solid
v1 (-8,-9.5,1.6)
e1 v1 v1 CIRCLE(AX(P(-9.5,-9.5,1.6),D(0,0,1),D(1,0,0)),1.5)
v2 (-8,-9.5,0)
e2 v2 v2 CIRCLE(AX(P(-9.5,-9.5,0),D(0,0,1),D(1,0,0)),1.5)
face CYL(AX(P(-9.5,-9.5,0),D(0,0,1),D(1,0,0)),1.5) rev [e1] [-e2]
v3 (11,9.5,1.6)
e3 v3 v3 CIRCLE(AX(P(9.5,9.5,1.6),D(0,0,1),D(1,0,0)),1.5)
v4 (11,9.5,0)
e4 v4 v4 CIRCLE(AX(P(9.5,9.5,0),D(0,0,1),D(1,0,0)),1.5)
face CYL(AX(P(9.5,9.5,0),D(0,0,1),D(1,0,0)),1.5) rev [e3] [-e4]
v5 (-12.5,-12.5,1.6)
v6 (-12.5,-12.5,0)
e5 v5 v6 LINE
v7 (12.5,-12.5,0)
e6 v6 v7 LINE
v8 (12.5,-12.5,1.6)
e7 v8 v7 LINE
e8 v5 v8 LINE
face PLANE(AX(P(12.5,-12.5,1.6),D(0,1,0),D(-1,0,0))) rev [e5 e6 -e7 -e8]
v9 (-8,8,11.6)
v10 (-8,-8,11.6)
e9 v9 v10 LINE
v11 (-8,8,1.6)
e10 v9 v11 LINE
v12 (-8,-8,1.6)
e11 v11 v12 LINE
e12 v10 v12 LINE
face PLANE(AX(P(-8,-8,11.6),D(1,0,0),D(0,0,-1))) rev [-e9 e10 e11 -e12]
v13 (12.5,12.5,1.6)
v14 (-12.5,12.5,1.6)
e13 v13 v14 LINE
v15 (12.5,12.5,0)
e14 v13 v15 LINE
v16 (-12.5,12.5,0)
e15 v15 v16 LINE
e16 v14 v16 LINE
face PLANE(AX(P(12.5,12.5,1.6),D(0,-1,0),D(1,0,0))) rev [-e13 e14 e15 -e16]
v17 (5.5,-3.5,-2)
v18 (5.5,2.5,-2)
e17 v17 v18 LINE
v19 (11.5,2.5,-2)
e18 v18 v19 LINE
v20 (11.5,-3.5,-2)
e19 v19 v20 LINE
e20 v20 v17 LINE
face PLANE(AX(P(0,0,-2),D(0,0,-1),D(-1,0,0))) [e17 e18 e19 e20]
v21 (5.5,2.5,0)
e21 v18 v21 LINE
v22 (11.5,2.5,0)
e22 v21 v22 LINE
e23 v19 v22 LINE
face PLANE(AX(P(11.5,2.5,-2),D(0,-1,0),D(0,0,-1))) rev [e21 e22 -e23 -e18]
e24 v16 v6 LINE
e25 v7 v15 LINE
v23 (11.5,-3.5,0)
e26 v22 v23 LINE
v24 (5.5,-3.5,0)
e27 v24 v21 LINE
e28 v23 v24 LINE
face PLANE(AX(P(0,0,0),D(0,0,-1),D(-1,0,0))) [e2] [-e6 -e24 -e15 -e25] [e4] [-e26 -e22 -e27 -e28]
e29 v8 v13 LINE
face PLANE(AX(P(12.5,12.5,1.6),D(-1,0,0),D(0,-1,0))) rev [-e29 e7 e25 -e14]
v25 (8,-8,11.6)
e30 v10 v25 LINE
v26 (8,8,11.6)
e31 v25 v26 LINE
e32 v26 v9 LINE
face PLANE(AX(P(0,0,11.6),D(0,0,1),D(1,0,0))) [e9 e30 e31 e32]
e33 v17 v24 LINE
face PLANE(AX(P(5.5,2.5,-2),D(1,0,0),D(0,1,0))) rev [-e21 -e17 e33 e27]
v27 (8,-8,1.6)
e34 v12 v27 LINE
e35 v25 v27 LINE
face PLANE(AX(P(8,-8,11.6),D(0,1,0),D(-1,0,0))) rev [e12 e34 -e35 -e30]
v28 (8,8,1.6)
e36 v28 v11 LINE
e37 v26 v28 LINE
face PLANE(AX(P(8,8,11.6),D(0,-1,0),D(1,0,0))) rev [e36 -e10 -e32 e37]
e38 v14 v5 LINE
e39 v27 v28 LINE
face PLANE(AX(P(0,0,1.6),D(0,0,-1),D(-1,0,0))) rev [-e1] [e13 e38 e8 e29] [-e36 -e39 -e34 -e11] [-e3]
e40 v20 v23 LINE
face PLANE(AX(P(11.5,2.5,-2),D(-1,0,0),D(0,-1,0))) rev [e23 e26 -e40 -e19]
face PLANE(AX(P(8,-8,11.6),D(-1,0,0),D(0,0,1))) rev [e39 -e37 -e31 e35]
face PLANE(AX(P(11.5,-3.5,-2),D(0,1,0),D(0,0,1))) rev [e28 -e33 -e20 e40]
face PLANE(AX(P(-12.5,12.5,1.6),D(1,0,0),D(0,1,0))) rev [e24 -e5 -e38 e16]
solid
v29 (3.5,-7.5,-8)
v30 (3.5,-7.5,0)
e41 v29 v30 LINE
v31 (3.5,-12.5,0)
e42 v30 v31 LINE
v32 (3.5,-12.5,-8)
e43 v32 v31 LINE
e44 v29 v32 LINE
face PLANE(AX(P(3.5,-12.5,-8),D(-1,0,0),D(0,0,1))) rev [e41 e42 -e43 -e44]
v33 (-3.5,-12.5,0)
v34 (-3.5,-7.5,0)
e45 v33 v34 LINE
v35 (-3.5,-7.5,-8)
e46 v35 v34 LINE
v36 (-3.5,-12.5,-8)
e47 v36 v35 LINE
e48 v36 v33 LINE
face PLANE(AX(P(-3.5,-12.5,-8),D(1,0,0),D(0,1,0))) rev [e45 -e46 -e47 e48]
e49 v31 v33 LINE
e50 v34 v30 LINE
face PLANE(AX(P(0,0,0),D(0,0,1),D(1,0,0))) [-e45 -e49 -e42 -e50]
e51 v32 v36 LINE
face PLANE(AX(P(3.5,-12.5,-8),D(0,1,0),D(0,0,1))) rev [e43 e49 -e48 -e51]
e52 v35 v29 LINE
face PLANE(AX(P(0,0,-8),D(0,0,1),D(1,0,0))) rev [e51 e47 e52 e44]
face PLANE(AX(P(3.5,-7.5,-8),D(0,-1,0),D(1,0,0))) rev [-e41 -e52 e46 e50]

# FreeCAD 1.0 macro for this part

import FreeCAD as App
import Part
import Sketcher
from FreeCAD import Vector
Q = App.Units.Quantity

doc = App.newDocument("Part")
body = doc.addObject("PartDesign::Body", "Body")

sketch1 = doc.addObject("Sketcher::SketchObject", "Sketch")
body.addObject(sketch1)
sketch1.AttachmentSupport = (doc.XY_Plane, [""])
sketch1.MapMode = "FlatFace"
sketch1.addGeometry(Part.LineSegment(Vector(-12, 12, 0), Vector(-12, -12, 0)), False)
sketch1.addGeometry(Part.LineSegment(Vector(-12, -12, 0), Vector(12, -12, 0)), False)
sketch1.addGeometry(Part.LineSegment(Vector(12, -12, 0), Vector(12, 12, 0)), False)
sketch1.addGeometry(Part.LineSegment(Vector(12, 12, 0), Vector(-12, 12, 0)), False)
sketch1.addConstraint(Sketcher.Constraint("Coincident", 0, 2, 1, 1))
sketch1.addConstraint(Sketcher.Constraint("Coincident", 1, 2, 2, 1))
sketch1.addConstraint(Sketcher.Constraint("Coincident", 2, 2, 3, 1))
sketch1.addConstraint(Sketcher.Constraint("Coincident", 3, 2, 0, 1))
sketch1.addConstraint(Sketcher.Constraint("Vertical", 0))
sketch1.addConstraint(Sketcher.Constraint("Horizontal", 1))
sketch1.addConstraint(Sketcher.Constraint("Vertical", 2))
sketch1.addConstraint(Sketcher.Constraint("Horizontal", 3))
sketch1.addConstraint(Sketcher.Constraint("Symmetric", 0, 2, 2, 2, -1, 1))
sketch1.addConstraint(Sketcher.Constraint("Equal", 3, 0))
sketch1.addConstraint(Sketcher.Constraint("DistanceX", 1, 1, 1, 2, Q("25 mm")))
pad1 = doc.addObject("PartDesign::Pad", "Pad")
body.addObject(pad1)
pad1.Profile = sketch1
pad1.Length = 1.6

sketch2 = doc.addObject("Sketcher::SketchObject", "Sketch001")
body.addObject(sketch2)
sketch2.AttachmentSupport = (doc.XY_Plane, [""])
sketch2.MapMode = "FlatFace"
sketch2.AttachmentOffset = App.Placement(Vector(0, 0, 1.6), App.Rotation())
sketch2.addGeometry(Part.Circle(Vector(9.5, 9.5, 0), Vector(0, 0, 1), 1.5), False)
sketch2.addGeometry(Part.Circle(Vector(-9.5, -9.5, 0), Vector(0, 0, 1), 1.5), False)
sketch2.addConstraint(Sketcher.Constraint("Equal", 0, 1))
sketch2.addConstraint(Sketcher.Constraint("Symmetric", 0, 3, 1, 3, -1, 1))
sketch2.addConstraint(Sketcher.Constraint("Diameter", 0, Q("3 mm")))
sketch2.addConstraint(Sketcher.Constraint("DistanceX", 1, 3, 0, 3, Q("19 mm")))
sketch2.addConstraint(Sketcher.Constraint("DistanceY", 1, 3, 0, 3, Q("19 mm")))
pocket1 = doc.addObject("PartDesign::Pocket", "Pocket")
body.addObject(pocket1)
pocket1.Profile = sketch2
pocket1.Type = "ThroughAll"

sketch3 = doc.addObject("Sketcher::SketchObject", "Sketch002")
body.addObject(sketch3)
sketch3.AttachmentSupport = (doc.XY_Plane, [""])
sketch3.MapMode = "FlatFace"
sketch3.AttachmentOffset = App.Placement(Vector(0, 0, 1.6), App.Rotation())
sketch3.addGeometry(Part.LineSegment(Vector(-8, 8, 0), Vector(-8, -8, 0)), False)
sketch3.addGeometry(Part.LineSegment(Vector(-8, -8, 0), Vector(8, -8, 0)), False)
sketch3.addGeometry(Part.LineSegment(Vector(8, -8, 0), Vector(8, 8, 0)), False)
sketch3.addGeometry(Part.LineSegment(Vector(8, 8, 0), Vector(-8, 8, 0)), False)
sketch3.addConstraint(Sketcher.Constraint("Coincident", 0, 2, 1, 1))
sketch3.addConstraint(Sketcher.Constraint("Coincident", 1, 2, 2, 1))
sketch3.addConstraint(Sketcher.Constraint("Coincident", 2, 2, 3, 1))
sketch3.addConstraint(Sketcher.Constraint("Coincident", 3, 2, 0, 1))
sketch3.addConstraint(Sketcher.Constraint("Vertical", 0))
sketch3.addConstraint(Sketcher.Constraint("Horizontal", 1))
sketch3.addConstraint(Sketcher.Constraint("Vertical", 2))
sketch3.addConstraint(Sketcher.Constraint("Horizontal", 3))
sketch3.addConstraint(Sketcher.Constraint("Symmetric", 0, 2, 2, 2, -1, 1))
sketch3.addConstraint(Sketcher.Constraint("Equal", 3, 0))
sketch3.addConstraint(Sketcher.Constraint("DistanceX", 1, 1, 1, 2, Q("16 mm")))
pad2 = doc.addObject("PartDesign::Pad", "Pad001")
body.addObject(pad2)
pad2.Profile = sketch3
pad2.Length = 10

sketch4 = doc.addObject("Sketcher::SketchObject", "Sketch003")
body.addObject(sketch4)
sketch4.AttachmentSupport = (doc.XY_Plane, [""])
sketch4.MapMode = "FlatFace"
sketch4.addGeometry(Part.LineSegment(Vector(12, 2, 0), Vector(12, -4, 0)), False)
sketch4.addGeometry(Part.LineSegment(Vector(12, -4, 0), Vector(6, -4, 0)), False)
sketch4.addGeometry(Part.LineSegment(Vector(6, -4, 0), Vector(6, 2, 0)), False)
sketch4.addGeometry(Part.LineSegment(Vector(6, 2, 0), Vector(12, 2, 0)), False)
sketch4.addConstraint(Sketcher.Constraint("Coincident", 0, 2, 1, 1))
sketch4.addConstraint(Sketcher.Constraint("Coincident", 1, 2, 2, 1))
sketch4.addConstraint(Sketcher.Constraint("Coincident", 2, 2, 3, 1))
sketch4.addConstraint(Sketcher.Constraint("Coincident", 3, 2, 0, 1))
sketch4.addConstraint(Sketcher.Constraint("Vertical", 0))
sketch4.addConstraint(Sketcher.Constraint("Horizontal", 1))
sketch4.addConstraint(Sketcher.Constraint("Vertical", 2))
sketch4.addConstraint(Sketcher.Constraint("Horizontal", 3))
sketch4.addConstraint(Sketcher.Constraint("Equal", 3, 0))
sketch4.addConstraint(Sketcher.Constraint("DistanceX", 1, 2, 1, 1, Q("6 mm")))
sketch4.addConstraint(Sketcher.Constraint("DistanceX", -1, 1, 0, 2, Q("11.5 mm")))
sketch4.addConstraint(Sketcher.Constraint("DistanceY", 0, 2, -1, 1, Q("3.5 mm")))
pad3 = doc.addObject("PartDesign::Pad", "Pad002")
body.addObject(pad3)
pad3.Profile = sketch4
pad3.Length = 2
pad3.Reversed = True
body2 = doc.addObject("PartDesign::Body", "Body001")

sketch5 = doc.addObject("Sketcher::SketchObject", "Sketch004")
body2.addObject(sketch5)
sketch5.AttachmentSupport = (doc.getObject("XY_Plane001"), [""])
sketch5.MapMode = "FlatFace"
sketch5.addGeometry(Part.LineSegment(Vector(4, -8, 0), Vector(4, -12, 0)), False)
sketch5.addGeometry(Part.LineSegment(Vector(4, -12, 0), Vector(-4, -12, 0)), False)
sketch5.addGeometry(Part.LineSegment(Vector(-4, -12, 0), Vector(-4, -8, 0)), False)
sketch5.addGeometry(Part.LineSegment(Vector(-4, -8, 0), Vector(4, -8, 0)), False)
sketch5.addConstraint(Sketcher.Constraint("Coincident", 0, 2, 1, 1))
sketch5.addConstraint(Sketcher.Constraint("Coincident", 1, 2, 2, 1))
sketch5.addConstraint(Sketcher.Constraint("Coincident", 2, 2, 3, 1))
sketch5.addConstraint(Sketcher.Constraint("Coincident", 3, 2, 0, 1))
sketch5.addConstraint(Sketcher.Constraint("Vertical", 0))
sketch5.addConstraint(Sketcher.Constraint("Horizontal", 1))
sketch5.addConstraint(Sketcher.Constraint("Vertical", 2))
sketch5.addConstraint(Sketcher.Constraint("Horizontal", 3))
sketch5.addConstraint(Sketcher.Constraint("DistanceX", 1, 2, 1, 1, Q("7 mm")))
sketch5.addConstraint(Sketcher.Constraint("DistanceY", 0, 2, 0, 1, Q("5 mm")))
sketch5.addConstraint(Sketcher.Constraint("DistanceX", -1, 1, 0, 2, Q("3.5 mm")))
sketch5.addConstraint(Sketcher.Constraint("DistanceY", 0, 2, -1, 1, Q("12.5 mm")))
pad4 = doc.addObject("PartDesign::Pad", "Pad003")
body2.addObject(pad4)
pad4.Profile = sketch5
pad4.Length = 8
pad4.Reversed = True

doc.recompute()
